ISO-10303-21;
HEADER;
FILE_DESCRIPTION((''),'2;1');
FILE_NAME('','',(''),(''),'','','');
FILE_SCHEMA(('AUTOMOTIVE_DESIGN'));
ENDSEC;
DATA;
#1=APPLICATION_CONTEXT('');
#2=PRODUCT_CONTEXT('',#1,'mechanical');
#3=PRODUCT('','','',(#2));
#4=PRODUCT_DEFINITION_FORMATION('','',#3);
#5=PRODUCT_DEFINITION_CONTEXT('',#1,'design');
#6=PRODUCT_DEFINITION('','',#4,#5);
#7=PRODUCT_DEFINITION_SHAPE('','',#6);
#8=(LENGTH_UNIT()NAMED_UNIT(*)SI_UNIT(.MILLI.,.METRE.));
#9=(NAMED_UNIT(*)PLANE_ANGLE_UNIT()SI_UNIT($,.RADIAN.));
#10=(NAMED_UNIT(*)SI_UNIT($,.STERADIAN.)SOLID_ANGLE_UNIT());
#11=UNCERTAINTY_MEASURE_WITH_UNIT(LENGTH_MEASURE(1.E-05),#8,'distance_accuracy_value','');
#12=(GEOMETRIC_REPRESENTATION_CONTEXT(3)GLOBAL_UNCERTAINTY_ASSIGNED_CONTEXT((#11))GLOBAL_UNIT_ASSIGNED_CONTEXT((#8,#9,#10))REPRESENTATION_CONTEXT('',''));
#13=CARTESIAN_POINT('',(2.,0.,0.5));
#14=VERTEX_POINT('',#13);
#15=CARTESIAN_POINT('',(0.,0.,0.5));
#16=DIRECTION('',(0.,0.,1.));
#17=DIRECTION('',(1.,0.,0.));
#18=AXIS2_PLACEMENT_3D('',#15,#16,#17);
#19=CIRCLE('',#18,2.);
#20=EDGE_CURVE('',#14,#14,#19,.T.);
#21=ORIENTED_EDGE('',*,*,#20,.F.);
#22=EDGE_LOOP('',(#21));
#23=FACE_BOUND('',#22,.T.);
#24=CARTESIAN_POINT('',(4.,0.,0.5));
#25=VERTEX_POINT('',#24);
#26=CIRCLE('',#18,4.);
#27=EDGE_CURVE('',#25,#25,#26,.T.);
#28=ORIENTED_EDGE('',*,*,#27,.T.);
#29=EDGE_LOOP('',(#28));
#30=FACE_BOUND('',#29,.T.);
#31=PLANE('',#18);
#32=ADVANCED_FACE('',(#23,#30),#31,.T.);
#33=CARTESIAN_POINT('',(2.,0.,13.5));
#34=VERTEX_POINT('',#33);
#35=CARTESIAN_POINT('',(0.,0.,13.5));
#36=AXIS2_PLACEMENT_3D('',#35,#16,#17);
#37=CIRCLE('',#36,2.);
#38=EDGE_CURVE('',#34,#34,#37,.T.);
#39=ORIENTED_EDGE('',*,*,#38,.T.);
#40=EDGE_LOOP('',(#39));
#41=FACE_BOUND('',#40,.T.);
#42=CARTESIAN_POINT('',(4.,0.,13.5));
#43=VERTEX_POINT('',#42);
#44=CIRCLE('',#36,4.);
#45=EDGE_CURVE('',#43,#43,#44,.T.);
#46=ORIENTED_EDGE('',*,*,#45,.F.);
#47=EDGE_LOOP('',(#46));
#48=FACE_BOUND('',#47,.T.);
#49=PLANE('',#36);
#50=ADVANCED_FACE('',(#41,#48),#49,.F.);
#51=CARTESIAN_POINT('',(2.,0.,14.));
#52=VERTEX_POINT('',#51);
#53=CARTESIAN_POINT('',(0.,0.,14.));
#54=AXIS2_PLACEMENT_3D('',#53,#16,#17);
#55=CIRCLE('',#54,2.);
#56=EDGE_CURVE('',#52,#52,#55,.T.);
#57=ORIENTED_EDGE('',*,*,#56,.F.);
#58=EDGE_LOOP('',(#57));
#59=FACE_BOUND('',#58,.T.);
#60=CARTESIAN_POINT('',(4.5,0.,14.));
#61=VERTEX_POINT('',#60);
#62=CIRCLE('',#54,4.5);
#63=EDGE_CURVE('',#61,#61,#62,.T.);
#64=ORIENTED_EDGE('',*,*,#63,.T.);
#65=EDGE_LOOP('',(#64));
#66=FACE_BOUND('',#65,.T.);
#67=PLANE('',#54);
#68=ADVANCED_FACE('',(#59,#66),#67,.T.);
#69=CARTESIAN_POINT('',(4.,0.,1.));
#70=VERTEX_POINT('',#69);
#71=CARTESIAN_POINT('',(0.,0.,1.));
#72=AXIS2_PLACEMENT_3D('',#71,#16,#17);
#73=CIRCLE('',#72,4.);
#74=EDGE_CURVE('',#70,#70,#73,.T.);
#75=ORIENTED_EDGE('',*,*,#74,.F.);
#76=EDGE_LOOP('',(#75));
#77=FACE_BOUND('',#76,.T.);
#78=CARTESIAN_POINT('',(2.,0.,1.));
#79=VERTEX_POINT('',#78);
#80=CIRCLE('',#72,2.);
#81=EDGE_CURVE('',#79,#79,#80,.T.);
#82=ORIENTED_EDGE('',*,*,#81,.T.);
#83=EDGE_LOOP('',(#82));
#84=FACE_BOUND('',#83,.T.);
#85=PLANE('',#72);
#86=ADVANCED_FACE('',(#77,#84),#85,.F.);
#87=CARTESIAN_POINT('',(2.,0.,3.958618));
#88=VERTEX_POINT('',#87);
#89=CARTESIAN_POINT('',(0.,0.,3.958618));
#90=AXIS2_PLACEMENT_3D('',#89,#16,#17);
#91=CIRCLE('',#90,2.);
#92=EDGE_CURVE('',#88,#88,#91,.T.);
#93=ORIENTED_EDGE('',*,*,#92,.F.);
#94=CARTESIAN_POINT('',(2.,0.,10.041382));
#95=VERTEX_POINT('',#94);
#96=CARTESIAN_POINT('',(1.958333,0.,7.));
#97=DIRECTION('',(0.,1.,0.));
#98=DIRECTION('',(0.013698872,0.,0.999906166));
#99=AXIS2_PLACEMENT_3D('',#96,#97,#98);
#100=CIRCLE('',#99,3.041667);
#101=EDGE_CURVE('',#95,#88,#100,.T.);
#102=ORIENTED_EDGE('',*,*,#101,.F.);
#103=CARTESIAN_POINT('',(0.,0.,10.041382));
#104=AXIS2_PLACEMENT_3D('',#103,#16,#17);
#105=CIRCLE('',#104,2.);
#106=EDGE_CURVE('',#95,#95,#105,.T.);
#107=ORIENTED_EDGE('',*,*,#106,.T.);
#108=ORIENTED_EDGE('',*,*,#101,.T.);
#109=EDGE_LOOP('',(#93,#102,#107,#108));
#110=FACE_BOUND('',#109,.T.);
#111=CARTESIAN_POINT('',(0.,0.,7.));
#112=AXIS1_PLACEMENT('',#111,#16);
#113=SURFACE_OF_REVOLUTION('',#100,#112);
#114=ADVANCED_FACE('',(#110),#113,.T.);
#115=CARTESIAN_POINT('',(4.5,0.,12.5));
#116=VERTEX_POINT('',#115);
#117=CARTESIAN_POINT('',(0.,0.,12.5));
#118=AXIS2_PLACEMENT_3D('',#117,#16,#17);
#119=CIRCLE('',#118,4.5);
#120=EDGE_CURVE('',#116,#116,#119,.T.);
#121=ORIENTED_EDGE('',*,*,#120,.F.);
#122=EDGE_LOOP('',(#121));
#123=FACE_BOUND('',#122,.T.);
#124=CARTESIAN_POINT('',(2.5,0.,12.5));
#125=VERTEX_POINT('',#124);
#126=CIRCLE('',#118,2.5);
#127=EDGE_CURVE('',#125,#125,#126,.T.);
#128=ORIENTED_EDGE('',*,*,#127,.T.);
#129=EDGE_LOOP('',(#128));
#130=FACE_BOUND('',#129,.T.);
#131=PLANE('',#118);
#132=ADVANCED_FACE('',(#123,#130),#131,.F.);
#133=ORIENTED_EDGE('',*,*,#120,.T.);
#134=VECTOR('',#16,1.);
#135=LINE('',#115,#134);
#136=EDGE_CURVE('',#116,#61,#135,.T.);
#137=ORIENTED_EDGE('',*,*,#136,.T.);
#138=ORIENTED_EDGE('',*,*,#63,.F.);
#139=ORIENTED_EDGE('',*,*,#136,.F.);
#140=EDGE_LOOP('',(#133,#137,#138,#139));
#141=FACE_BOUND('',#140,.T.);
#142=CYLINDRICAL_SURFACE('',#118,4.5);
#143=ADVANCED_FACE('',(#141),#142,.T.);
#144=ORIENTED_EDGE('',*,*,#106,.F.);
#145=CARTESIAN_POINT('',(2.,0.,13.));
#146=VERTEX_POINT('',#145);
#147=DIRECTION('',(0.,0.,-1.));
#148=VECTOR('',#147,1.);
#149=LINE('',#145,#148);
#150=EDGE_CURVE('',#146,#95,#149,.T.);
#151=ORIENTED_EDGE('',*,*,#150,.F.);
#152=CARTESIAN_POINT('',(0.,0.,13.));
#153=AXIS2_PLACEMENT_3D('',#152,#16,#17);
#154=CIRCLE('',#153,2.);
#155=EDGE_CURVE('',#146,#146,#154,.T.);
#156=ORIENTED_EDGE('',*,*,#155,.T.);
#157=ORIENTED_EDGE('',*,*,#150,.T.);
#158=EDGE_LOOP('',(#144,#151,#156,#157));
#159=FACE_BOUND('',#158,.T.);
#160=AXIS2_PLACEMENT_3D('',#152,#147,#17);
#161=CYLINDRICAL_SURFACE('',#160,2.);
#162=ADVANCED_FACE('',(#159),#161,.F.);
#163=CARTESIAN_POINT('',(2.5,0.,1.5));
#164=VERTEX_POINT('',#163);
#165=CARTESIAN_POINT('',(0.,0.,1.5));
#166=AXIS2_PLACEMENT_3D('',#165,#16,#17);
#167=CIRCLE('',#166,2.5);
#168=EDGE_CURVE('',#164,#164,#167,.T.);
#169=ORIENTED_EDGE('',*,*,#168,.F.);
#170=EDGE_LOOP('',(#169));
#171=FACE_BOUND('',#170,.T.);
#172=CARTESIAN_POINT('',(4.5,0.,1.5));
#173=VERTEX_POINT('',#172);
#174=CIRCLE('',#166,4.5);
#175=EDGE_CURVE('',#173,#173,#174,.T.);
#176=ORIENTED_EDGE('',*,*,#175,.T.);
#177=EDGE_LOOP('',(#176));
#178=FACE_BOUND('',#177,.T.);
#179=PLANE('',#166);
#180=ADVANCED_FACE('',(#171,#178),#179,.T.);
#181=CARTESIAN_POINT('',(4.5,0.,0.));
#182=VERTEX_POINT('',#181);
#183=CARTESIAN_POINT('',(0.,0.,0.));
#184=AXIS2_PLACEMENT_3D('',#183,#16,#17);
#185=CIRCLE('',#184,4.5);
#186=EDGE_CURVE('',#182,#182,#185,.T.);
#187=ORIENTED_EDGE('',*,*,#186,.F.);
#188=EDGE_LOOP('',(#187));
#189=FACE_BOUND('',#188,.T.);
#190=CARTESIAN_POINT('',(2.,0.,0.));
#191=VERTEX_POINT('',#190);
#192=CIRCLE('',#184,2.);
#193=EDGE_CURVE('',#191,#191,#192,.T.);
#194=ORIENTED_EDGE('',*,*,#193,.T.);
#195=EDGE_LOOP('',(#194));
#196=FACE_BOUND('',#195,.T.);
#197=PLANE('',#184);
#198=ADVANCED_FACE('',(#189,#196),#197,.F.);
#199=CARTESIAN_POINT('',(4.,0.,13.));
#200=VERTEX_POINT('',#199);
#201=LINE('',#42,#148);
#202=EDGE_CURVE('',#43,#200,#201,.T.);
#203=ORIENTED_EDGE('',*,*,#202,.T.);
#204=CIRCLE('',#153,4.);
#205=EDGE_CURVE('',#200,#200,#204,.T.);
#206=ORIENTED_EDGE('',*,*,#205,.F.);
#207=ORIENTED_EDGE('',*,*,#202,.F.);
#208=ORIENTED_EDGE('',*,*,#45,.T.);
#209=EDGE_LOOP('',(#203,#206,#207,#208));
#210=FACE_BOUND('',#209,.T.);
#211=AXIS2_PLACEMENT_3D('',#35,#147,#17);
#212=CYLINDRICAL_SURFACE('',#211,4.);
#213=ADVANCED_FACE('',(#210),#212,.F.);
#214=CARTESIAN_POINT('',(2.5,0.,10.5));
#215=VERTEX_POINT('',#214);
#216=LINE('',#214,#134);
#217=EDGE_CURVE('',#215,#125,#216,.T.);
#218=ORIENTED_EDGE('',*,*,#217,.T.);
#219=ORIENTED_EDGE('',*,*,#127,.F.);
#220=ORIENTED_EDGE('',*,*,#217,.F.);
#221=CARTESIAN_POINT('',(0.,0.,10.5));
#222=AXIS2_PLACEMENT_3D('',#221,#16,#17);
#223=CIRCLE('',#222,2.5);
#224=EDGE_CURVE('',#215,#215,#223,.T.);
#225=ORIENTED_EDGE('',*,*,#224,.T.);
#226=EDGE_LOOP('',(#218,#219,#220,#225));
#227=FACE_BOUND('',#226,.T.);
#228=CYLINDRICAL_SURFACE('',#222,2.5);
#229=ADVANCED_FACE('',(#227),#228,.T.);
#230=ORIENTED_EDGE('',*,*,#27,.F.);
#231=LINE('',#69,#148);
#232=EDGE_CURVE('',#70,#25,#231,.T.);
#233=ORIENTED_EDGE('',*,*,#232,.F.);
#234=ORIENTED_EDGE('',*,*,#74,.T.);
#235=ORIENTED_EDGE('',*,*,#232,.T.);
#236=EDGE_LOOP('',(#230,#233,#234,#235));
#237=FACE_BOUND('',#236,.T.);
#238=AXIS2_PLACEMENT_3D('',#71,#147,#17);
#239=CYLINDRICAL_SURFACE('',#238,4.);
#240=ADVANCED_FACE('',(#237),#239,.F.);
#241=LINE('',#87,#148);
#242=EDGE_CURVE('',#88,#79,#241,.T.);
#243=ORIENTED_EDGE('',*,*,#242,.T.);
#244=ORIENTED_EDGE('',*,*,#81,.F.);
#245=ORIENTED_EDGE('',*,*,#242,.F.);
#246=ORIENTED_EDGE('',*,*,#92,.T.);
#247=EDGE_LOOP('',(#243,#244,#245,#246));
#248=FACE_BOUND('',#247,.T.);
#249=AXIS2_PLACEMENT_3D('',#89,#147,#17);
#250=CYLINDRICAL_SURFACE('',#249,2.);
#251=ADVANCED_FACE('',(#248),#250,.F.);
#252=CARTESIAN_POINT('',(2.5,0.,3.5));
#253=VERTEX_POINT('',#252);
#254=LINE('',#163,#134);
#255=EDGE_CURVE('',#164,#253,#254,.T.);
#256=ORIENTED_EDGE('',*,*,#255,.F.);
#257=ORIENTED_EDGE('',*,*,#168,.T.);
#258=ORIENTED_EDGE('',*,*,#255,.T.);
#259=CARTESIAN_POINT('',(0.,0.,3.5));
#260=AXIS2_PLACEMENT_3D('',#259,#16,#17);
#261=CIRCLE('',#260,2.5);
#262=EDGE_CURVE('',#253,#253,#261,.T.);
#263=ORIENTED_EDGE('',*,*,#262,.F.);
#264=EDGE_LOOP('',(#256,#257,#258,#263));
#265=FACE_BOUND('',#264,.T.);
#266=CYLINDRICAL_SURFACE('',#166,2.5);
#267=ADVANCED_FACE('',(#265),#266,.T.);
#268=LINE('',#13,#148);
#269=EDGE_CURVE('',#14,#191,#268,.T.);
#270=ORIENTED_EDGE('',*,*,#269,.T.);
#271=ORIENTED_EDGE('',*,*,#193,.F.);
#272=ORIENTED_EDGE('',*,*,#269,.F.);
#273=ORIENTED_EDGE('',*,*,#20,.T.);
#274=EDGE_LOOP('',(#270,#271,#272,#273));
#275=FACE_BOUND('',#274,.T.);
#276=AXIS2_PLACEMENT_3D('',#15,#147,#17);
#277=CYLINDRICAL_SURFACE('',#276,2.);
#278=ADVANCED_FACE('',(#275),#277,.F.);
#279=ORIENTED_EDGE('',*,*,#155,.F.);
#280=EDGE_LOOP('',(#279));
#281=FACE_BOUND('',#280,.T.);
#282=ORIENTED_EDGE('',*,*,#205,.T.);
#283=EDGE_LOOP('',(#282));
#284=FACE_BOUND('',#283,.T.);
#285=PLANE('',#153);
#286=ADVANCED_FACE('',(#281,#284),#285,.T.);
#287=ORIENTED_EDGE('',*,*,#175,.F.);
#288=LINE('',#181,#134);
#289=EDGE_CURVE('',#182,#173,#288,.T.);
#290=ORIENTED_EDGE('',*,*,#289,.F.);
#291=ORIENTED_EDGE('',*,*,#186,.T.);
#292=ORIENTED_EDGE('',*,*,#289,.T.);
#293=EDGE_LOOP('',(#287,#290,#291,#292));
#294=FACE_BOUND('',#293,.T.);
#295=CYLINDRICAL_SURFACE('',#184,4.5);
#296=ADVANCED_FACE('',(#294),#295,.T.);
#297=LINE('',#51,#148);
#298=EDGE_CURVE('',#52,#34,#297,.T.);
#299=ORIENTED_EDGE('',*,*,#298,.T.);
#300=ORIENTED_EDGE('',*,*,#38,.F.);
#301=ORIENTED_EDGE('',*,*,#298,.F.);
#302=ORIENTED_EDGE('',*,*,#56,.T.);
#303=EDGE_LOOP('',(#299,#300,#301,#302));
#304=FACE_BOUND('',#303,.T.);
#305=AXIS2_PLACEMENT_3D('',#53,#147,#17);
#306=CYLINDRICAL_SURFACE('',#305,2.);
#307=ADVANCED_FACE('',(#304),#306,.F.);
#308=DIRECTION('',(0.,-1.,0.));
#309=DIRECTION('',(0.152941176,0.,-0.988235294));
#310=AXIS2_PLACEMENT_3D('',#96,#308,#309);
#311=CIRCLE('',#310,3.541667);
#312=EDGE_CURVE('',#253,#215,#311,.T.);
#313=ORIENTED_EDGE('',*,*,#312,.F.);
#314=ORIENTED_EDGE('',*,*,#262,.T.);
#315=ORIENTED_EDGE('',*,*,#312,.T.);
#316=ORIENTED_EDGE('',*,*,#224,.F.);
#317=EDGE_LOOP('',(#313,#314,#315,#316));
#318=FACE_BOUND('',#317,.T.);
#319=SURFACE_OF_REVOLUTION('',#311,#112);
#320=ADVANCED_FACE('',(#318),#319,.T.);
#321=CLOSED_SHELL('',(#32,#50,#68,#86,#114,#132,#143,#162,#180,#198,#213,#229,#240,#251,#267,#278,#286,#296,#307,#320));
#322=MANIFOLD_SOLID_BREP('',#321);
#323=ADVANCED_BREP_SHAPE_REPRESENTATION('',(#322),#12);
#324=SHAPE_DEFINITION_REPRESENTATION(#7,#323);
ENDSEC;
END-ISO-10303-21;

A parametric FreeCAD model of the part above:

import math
import FreeCAD as App
import Part
import Sketcher
from FreeCAD import Vector
Q = App.Units.Quantity

doc = App.newDocument("Part")
body = doc.addObject("PartDesign::Body", "Body")

sketch1 = body.newObject("Sketcher::SketchObject", "Sketch")
sketch1.AttachmentSupport = (doc.getObject("XZ_Plane"), [""])
sketch1.MapMode = "FlatFace"
sketch1.addGeometry([
    Part.LineSegment(Vector(2, 0.5, 0), Vector(2, 0, 0)),
    Part.LineSegment(Vector(2, 0, 0), Vector(4.5, 0, 0)),
    Part.LineSegment(Vector(4.5, 0, 0), Vector(4.5, 1.5, 0)),
    Part.LineSegment(Vector(4.5, 1.5, 0), Vector(2.5, 1.5, 0)),
    Part.LineSegment(Vector(2.5, 1.5, 0), Vector(2.5, 3.5, 0)),
    Part.ArcOfCircle(Part.Circle(Vector(2, 7, 0), Vector(0, 0, 1), 3.5), math.radians(-81), math.radians(81)),
    Part.LineSegment(Vector(2.5, 10.5, 0), Vector(2.5, 12.5, 0)),
    Part.LineSegment(Vector(2.5, 12.5, 0), Vector(4.5, 12.5, 0)),
    Part.LineSegment(Vector(4.5, 12.5, 0), Vector(4.5, 14, 0)),
    Part.LineSegment(Vector(4.5, 14, 0), Vector(2, 14, 0)),
    Part.LineSegment(Vector(2, 14, 0), Vector(2, 13.5, 0)),
    Part.LineSegment(Vector(2, 13.5, 0), Vector(4, 13.5, 0)),
    Part.LineSegment(Vector(4, 13.5, 0), Vector(4, 13, 0)),
    Part.LineSegment(Vector(4, 13, 0), Vector(2, 13, 0)),
    Part.LineSegment(Vector(2, 13, 0), Vector(2, 10, 0)),
    Part.ArcOfCircle(Part.Circle(Vector(2, 7, 0), Vector(0, 0, 1), 3), math.radians(-89), math.radians(89)),
    Part.LineSegment(Vector(2, 4, 0), Vector(2, 1, 0)),
    Part.LineSegment(Vector(2, 1, 0), Vector(4, 1, 0)),
    Part.LineSegment(Vector(4, 1, 0), Vector(4, 0.5, 0)),
    Part.LineSegment(Vector(4, 0.5, 0), Vector(2, 0.5, 0)),
], False)
sketch1.addConstraint([
    Sketcher.Constraint("Coincident", 0, 2, 1, 1),
    Sketcher.Constraint("Coincident", 1, 2, 2, 1),
    Sketcher.Constraint("Coincident", 2, 2, 3, 1),
    Sketcher.Constraint("Coincident", 3, 2, 4, 1),
    Sketcher.Constraint("Coincident", 4, 2, 5, 1),
    Sketcher.Constraint("Coincident", 5, 2, 6, 1),
    Sketcher.Constraint("Coincident", 6, 2, 7, 1),
    Sketcher.Constraint("Coincident", 7, 2, 8, 1),
    Sketcher.Constraint("Coincident", 8, 2, 9, 1),
    Sketcher.Constraint("Coincident", 9, 2, 10, 1),
    Sketcher.Constraint("Coincident", 10, 2, 11, 1),
    Sketcher.Constraint("Coincident", 11, 2, 12, 1),
    Sketcher.Constraint("Coincident", 12, 2, 13, 1),
    Sketcher.Constraint("Coincident", 13, 2, 14, 1),
    Sketcher.Constraint("Coincident", 14, 2, 15, 2),
    Sketcher.Constraint("Coincident", 15, 1, 16, 1),
    Sketcher.Constraint("Coincident", 16, 2, 17, 1),
    Sketcher.Constraint("Coincident", 17, 2, 18, 1),
    Sketcher.Constraint("Coincident", 18, 2, 19, 1),
    Sketcher.Constraint("Coincident", 19, 2, 0, 1),
    Sketcher.Constraint("Vertical", 0),
    Sketcher.Constraint("Horizontal", 1),
    Sketcher.Constraint("Vertical", 2),
    Sketcher.Constraint("Horizontal", 3),
    Sketcher.Constraint("Vertical", 4),
    Sketcher.Constraint("Vertical", 6),
    Sketcher.Constraint("Horizontal", 7),
    Sketcher.Constraint("Vertical", 8),
    Sketcher.Constraint("Horizontal", 9),
    Sketcher.Constraint("Vertical", 10),
    Sketcher.Constraint("Horizontal", 11),
    Sketcher.Constraint("Vertical", 12),
    Sketcher.Constraint("Horizontal", 13),
    Sketcher.Constraint("Vertical", 14),
    Sketcher.Constraint("Vertical", 16),
    Sketcher.Constraint("Horizontal", 17),
    Sketcher.Constraint("Vertical", 18),
    Sketcher.Constraint("Horizontal", 19),
    Sketcher.Constraint("Coincident", 15, 3, 5, 3),
    Sketcher.Constraint("PointOnObject", 0, 2, -1),
    Sketcher.Constraint("Vertical", 4, 2, 5, 2),
    Sketcher.Constraint("Vertical", 2, 2, 7, 2),
    Sketcher.Constraint("Vertical", 0, 2, 9, 2),
    Sketcher.Constraint("Vertical", 10, 2, 13, 2),
    Sketcher.Constraint("Vertical", 14, 2, 15, 1),
    Sketcher.Constraint("Vertical", 12, 2, 17, 2),
    Sketcher.Constraint("Equal", 7, 11),
    Sketcher.Constraint("Equal", 19, 4),
    Sketcher.Constraint("Equal", 4, 6),
    Sketcher.Constraint("Equal", 2, 8),
    Sketcher.Constraint("Equal", 0, 10),
    Sketcher.Constraint("Equal", 10, 12),
    Sketcher.Constraint("Equal", 14, 16),
    Sketcher.Constraint("DistanceX", 3, 2, 3, 1, Q("2 mm")),
    Sketcher.Constraint("DistanceX", 1, 1, 1, 2, Q("2.5 mm")),
    Sketcher.Constraint("DistanceY", 0, 2, 0, 1, Q("0.5 mm")),
    Sketcher.Constraint("DistanceY", 2, 1, 2, 2, Q("1.5 mm")),
    Sketcher.Constraint("DistanceY", -1, 1, 5, 3, Q("7 mm")),
    Sketcher.Constraint("DistanceX", -1, 1, 0, 2, Q("2 mm")),
    Sketcher.Constraint("Radius", 5, Q("3.541667 mm")),
    Sketcher.Constraint("Radius", 15, Q("3.041667 mm")),
])
revolution = body.newObject("PartDesign::Revolution", "Revolution")
revolution.Profile = sketch1
revolution.ReferenceAxis = (sketch1, ["V_Axis"])
revolution.Angle = 360

doc.recompute()
